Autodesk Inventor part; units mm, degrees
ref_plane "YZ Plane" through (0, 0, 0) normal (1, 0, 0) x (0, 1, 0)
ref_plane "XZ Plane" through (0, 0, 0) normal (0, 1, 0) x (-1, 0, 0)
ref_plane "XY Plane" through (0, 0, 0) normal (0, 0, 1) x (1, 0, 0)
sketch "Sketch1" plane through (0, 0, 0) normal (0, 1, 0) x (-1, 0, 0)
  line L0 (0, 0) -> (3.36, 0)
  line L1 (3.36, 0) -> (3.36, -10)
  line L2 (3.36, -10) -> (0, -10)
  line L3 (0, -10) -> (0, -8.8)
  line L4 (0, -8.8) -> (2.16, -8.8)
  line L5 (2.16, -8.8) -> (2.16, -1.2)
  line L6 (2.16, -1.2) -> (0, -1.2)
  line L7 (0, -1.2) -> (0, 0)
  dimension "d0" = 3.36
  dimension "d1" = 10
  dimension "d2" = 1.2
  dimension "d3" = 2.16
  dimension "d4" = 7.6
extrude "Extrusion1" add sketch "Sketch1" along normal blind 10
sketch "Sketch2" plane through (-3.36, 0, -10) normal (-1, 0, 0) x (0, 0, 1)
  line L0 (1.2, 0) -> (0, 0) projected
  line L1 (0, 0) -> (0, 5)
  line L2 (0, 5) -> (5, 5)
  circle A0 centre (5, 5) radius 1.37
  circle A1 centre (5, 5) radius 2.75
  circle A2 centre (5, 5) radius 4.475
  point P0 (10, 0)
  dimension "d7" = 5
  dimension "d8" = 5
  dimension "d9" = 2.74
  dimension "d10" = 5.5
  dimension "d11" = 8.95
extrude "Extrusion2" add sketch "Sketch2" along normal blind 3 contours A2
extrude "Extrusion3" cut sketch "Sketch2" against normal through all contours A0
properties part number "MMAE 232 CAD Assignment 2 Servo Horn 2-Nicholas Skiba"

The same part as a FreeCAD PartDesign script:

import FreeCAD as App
import Part
import Sketcher

V = App.Vector

doc = App.newDocument("Part")
body = doc.addObject("PartDesign::Body", "Body")

sketch1 = body.newObject("Sketcher::SketchObject", "Sketch")
sketch1.AttachmentSupport = (doc.getObject("XZ_Plane"), [""])
sketch1.MapMode = "FlatFace"
sketch1.addGeometry(Part.LineSegment(V(-3.36, 0, 0), V(0, 0, 0)), False)
sketch1.addGeometry(Part.LineSegment(V(0, 0, 0), V(0, -1.2, 0)), False)
sketch1.addGeometry(Part.LineSegment(V(0, -1.2, 0), V(-2.16, -1.2, 0)), False)
sketch1.addGeometry(Part.LineSegment(V(-2.16, -1.2, 0), V(-2.16, -8.8, 0)), False)
sketch1.addGeometry(Part.LineSegment(V(-2.16, -8.8, 0), V(0, -8.8, 0)), False)
sketch1.addGeometry(Part.LineSegment(V(0, -8.8, 0), V(0, -10, 0)), False)
sketch1.addGeometry(Part.LineSegment(V(0, -10, 0), V(-3.36, -10, 0)), False)
sketch1.addGeometry(Part.LineSegment(V(-3.36, -10, 0), V(-3.36, 0, 0)), False)
sketch1.addConstraint(Sketcher.Constraint("Coincident", 0, 2, 1, 1))
sketch1.addConstraint(Sketcher.Constraint("Coincident", 1, 2, 2, 1))
sketch1.addConstraint(Sketcher.Constraint("Coincident", 2, 2, 3, 1))
sketch1.addConstraint(Sketcher.Constraint("Coincident", 3, 2, 4, 1))
sketch1.addConstraint(Sketcher.Constraint("Coincident", 4, 2, 5, 1))
sketch1.addConstraint(Sketcher.Constraint("Coincident", 5, 2, 6, 1))
sketch1.addConstraint(Sketcher.Constraint("Coincident", 6, 2, 7, 1))
sketch1.addConstraint(Sketcher.Constraint("Coincident", 7, 2, 0, 1))
sketch1.addConstraint(Sketcher.Constraint("Horizontal", 0))
sketch1.addConstraint(Sketcher.Constraint("Vertical", 1))
sketch1.addConstraint(Sketcher.Constraint("Horizontal", 2))
sketch1.addConstraint(Sketcher.Constraint("Vertical", 3))
sketch1.addConstraint(Sketcher.Constraint("Horizontal", 4))
sketch1.addConstraint(Sketcher.Constraint("Vertical", 5))
sketch1.addConstraint(Sketcher.Constraint("Horizontal", 6))
sketch1.addConstraint(Sketcher.Constraint("Vertical", 7))
sketch1.addConstraint(Sketcher.Constraint("Coincident", 0, 2, -1, 1))
sketch1.addConstraint(Sketcher.Constraint("PointOnObject", 4, 2, -2))
sketch1.addConstraint(Sketcher.Constraint("Equal", 1, 5))
sketch1.addConstraint(Sketcher.Constraint("DistanceY", 7, 1, 7, 2, 10.0))
sketch1.addConstraint(Sketcher.Constraint("DistanceY", 1, 2, 1, 1, 1.2))
sketch1.addConstraint(Sketcher.Constraint("DistanceX", 0, 1, 0, 2, 3.36))
sketch1.addConstraint(Sketcher.Constraint("DistanceX", 2, 2, 2, 1, 2.16))
pad1 = body.newObject("PartDesign::Pad", "Pad")
pad1.Profile = sketch1
pad1.Length = 10
pad1.Reversed = True

sketch2 = body.newObject("Sketcher::SketchObject", "Sketch001")
sketch2.AttachmentSupport = (doc.getObject("YZ_Plane"), [""])
sketch2.MapMode = "FlatFace"
sketch2.AttachmentOffset = App.Placement(V(0, 0, -3.36), App.Rotation())
sketch2.addGeometry(Part.Circle(V(5, -5, 0), V(0, 0, 1), 4.475), False)
sketch2.addGeometry(Part.Circle(V(5, -5, 0), V(0, 0, 1), 2.75), False)
sketch2.addConstraint(Sketcher.Constraint("Coincident", 1, 3, 0, 3))
sketch2.addConstraint(Sketcher.Constraint("Diameter", 1, 5.5))
sketch2.addConstraint(Sketcher.Constraint("Diameter", 0, 8.95))
sketch2.addConstraint(Sketcher.Constraint("DistanceX", -1, 1, 0, 3, 5.0))
sketch2.addConstraint(Sketcher.Constraint("DistanceY", 0, 3, -1, 1, 5.0))
pad2 = body.newObject("PartDesign::Pad", "Pad001")
pad2.Profile = sketch2
pad2.Length = 3
pad2.Reversed = True

sketch3 = body.newObject("Sketcher::SketchObject", "Sketch002")
sketch3.AttachmentSupport = (doc.getObject("YZ_Plane"), [""])
sketch3.MapMode = "FlatFace"
sketch3.AttachmentOffset = App.Placement(V(0, 0, -3.36), App.Rotation())
sketch3.addGeometry(Part.Circle(V(5, -5, 0), V(0, 0, 1), 1.37), False)
sketch3.addConstraint(Sketcher.Constraint("Diameter", 0, 2.74))
sketch3.addConstraint(Sketcher.Constraint("DistanceX", -1, 1, 0, 3, 5.0))
sketch3.addConstraint(Sketcher.Constraint("DistanceY", 0, 3, -1, 1, 5.0))
pocket1 = body.newObject("PartDesign::Pocket", "Pocket")
pocket1.Profile = sketch3
pocket1.Type = "ThroughAll"
pocket1.Reversed = True

doc.recompute()
